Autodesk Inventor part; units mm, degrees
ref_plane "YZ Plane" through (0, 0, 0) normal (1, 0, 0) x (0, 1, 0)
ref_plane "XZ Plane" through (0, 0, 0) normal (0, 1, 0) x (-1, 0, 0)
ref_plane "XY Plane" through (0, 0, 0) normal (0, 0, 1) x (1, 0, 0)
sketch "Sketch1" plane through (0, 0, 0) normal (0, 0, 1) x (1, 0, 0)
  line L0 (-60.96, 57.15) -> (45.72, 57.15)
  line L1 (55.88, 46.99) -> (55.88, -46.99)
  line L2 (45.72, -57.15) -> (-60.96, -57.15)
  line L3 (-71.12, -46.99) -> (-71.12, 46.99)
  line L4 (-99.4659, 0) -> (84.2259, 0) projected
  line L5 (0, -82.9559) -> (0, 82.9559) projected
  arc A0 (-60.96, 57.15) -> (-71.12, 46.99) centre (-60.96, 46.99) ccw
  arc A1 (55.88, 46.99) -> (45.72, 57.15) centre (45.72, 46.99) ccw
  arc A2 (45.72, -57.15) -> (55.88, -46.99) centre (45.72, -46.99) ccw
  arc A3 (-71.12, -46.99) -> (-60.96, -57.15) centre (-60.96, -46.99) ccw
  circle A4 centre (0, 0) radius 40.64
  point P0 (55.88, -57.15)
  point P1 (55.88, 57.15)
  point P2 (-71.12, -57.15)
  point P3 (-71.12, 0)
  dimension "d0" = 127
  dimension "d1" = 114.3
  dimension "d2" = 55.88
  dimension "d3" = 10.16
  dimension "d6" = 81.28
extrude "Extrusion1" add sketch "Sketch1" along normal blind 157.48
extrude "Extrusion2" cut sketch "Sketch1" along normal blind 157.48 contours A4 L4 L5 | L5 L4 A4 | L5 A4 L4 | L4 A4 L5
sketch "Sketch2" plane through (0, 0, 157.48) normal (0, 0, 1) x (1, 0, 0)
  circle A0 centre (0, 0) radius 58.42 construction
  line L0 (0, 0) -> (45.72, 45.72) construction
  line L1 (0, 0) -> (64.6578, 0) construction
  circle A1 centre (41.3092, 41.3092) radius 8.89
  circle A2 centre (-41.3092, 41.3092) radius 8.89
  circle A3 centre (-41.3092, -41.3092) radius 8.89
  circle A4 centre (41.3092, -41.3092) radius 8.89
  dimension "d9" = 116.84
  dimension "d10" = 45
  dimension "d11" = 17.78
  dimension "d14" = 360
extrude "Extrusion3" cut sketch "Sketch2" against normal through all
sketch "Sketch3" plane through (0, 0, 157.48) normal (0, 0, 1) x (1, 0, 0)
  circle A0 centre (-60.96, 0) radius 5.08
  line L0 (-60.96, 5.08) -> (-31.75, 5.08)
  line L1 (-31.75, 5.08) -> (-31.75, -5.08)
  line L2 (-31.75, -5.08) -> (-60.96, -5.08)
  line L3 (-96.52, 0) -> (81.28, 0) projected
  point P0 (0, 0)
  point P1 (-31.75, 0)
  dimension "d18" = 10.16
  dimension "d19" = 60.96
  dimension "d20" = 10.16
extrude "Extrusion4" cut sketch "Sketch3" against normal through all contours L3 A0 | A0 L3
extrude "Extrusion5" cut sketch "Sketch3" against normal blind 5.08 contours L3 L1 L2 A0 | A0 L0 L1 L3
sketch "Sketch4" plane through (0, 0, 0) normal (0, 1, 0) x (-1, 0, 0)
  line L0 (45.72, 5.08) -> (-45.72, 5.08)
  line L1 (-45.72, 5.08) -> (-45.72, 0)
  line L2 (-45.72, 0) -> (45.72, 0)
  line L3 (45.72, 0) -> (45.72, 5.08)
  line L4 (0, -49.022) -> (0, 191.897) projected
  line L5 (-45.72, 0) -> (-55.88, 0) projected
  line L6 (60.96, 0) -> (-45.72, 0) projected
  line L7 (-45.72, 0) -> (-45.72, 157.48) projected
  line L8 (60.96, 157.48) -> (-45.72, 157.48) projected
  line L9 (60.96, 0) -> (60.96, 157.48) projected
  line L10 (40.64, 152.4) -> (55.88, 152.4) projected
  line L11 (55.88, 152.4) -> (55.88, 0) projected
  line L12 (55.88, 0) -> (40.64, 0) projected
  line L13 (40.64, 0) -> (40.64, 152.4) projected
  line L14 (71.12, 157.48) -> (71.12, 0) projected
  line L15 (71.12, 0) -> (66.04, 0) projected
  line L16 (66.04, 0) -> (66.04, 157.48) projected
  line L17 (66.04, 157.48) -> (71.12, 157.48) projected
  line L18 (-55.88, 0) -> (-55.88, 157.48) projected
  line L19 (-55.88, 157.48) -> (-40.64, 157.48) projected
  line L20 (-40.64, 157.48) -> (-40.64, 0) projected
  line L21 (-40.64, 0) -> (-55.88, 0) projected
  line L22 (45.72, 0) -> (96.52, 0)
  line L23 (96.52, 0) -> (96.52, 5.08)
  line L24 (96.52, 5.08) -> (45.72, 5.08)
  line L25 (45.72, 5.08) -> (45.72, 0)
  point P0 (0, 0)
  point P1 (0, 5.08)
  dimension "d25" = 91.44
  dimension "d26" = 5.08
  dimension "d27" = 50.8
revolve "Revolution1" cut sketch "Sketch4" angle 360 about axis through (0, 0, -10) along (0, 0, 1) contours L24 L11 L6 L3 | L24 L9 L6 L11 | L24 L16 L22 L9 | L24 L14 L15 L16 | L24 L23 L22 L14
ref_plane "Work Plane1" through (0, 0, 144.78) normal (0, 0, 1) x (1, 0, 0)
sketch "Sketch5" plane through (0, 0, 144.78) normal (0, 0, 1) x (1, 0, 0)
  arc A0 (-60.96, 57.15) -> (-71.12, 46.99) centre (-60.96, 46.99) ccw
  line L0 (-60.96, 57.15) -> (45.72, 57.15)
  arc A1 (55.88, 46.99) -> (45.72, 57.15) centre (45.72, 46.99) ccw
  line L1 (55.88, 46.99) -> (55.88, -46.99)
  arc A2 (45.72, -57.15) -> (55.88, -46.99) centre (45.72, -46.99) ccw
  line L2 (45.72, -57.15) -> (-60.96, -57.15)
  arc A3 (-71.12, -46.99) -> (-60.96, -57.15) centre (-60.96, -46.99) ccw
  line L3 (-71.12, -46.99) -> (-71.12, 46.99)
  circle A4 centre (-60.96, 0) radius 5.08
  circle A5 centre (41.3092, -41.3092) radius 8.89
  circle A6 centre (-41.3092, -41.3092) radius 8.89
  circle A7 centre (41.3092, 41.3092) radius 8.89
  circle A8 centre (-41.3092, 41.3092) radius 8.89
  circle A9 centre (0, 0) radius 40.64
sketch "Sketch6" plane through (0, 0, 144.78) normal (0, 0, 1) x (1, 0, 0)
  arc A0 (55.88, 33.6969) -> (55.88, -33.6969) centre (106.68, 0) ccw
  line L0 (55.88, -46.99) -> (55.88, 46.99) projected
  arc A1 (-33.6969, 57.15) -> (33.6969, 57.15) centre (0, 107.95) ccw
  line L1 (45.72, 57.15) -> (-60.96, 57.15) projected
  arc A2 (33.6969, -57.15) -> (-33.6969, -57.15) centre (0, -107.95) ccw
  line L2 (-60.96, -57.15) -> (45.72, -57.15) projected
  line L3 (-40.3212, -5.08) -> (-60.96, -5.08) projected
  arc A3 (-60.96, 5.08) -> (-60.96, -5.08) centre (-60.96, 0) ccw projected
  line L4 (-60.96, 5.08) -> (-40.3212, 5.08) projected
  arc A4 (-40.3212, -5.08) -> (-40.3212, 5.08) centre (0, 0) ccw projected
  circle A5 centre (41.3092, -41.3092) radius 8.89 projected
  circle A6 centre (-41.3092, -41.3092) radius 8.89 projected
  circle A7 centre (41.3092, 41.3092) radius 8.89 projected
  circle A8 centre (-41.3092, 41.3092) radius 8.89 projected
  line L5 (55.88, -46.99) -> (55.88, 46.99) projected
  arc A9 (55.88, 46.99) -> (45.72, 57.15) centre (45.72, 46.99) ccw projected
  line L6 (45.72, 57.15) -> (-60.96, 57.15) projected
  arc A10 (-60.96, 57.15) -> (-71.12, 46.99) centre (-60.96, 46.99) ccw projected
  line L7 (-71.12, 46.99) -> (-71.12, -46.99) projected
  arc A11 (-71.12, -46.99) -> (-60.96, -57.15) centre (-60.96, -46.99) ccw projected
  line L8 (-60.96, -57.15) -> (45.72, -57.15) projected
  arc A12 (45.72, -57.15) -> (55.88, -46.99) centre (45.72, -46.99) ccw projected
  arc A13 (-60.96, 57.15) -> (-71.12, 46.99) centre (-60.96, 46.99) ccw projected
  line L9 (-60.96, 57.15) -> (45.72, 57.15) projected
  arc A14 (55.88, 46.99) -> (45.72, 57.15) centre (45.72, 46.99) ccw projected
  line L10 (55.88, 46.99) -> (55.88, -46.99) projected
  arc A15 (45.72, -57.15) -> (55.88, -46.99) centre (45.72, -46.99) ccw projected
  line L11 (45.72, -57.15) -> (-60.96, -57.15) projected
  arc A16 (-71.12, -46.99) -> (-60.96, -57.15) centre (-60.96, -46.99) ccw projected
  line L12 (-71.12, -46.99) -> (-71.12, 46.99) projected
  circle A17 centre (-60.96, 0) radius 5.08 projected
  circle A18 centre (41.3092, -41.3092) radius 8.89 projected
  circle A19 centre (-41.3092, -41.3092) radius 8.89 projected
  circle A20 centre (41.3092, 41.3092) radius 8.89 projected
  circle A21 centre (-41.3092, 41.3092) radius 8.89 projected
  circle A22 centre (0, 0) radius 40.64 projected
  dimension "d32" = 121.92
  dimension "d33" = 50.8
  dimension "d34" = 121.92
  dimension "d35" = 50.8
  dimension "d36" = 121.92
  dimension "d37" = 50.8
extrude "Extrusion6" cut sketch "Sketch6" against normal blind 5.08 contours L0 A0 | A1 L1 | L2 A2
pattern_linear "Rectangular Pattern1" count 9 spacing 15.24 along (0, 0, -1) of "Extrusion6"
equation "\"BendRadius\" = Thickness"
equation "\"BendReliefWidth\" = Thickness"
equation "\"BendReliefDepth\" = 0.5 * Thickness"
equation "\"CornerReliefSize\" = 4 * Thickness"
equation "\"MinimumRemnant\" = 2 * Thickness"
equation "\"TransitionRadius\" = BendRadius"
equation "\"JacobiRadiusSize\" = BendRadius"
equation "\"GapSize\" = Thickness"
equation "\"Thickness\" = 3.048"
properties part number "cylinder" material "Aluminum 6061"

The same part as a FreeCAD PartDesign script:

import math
import FreeCAD as App
import Part
import Sketcher
Q = App.Units.Quantity

doc = App.newDocument("Part")
body = doc.addObject("PartDesign::Body", "Body")

# Sketch on XY plane
sketch1 = body.newObject("Sketcher::SketchObject", "Sketch")
sketch1.AttachmentSupport = (doc.getObject("XY_Plane"), [""])
sketch1.MapMode = "FlatFace"
sketch1.addGeometry(Part.ArcOfCircle(Part.Circle(App.Vector(-61, 47, 0), App.Vector(0, 0, 1), 10), math.radians(90), math.radians(180)), False)
sketch1.addGeometry(Part.LineSegment(App.Vector(-71, 47, 0), App.Vector(-71, -47, 0)), False)
sketch1.addGeometry(Part.ArcOfCircle(Part.Circle(App.Vector(-61, -47, 0), App.Vector(0, 0, 1), 10), math.radians(180), math.radians(270)), False)
sketch1.addGeometry(Part.LineSegment(App.Vector(-61, -57, 0), App.Vector(46, -57, 0)), False)
sketch1.addGeometry(Part.ArcOfCircle(Part.Circle(App.Vector(46, -47, 0), App.Vector(0, 0, 1), 10), math.radians(-90), math.radians(0)), False)
sketch1.addGeometry(Part.LineSegment(App.Vector(56, -47, 0), App.Vector(56, 47, 0)), False)
sketch1.addGeometry(Part.ArcOfCircle(Part.Circle(App.Vector(46, 47, 0), App.Vector(0, 0, 1), 10), math.radians(0), math.radians(90)), False)
sketch1.addGeometry(Part.LineSegment(App.Vector(46, 57, 0), App.Vector(-61, 57, 0)), False)
sketch1.addConstraint(Sketcher.Constraint("Tangent", 0, 2, 1, 1))
sketch1.addConstraint(Sketcher.Constraint("Tangent", 1, 2, 2, 1))
sketch1.addConstraint(Sketcher.Constraint("Tangent", 2, 2, 3, 1))
sketch1.addConstraint(Sketcher.Constraint("Tangent", 3, 2, 4, 1))
sketch1.addConstraint(Sketcher.Constraint("Tangent", 4, 2, 5, 1))
sketch1.addConstraint(Sketcher.Constraint("Tangent", 5, 2, 6, 1))
sketch1.addConstraint(Sketcher.Constraint("Tangent", 6, 2, 7, 1))
sketch1.addConstraint(Sketcher.Constraint("Tangent", 7, 2, 0, 1))
sketch1.addConstraint(Sketcher.Constraint("Vertical", 1))
sketch1.addConstraint(Sketcher.Constraint("Horizontal", 3))
sketch1.addConstraint(Sketcher.Constraint("Vertical", 5))
sketch1.addConstraint(Sketcher.Constraint("Horizontal", 7))
sketch1.addConstraint(Sketcher.Constraint("Equal", 0, 2))
sketch1.addConstraint(Sketcher.Constraint("Equal", 2, 4))
sketch1.addConstraint(Sketcher.Constraint("Equal", 4, 6))
sketch1.addConstraint(Sketcher.Constraint("Radius", 0, Q("0.4 in")))
sketch1.addConstraint(Sketcher.Constraint("DistanceX", -1, 1, 4, 2, Q("2.2 in")))
sketch1.addConstraint(Sketcher.Constraint("DistanceX", 3, 1, 3, 2, Q("4.2 in")))
sketch1.addConstraint(Sketcher.Constraint("DistanceY", 1, 2, 1, 1, Q("3.7 in")))
sketch1.addConstraint(Sketcher.Constraint("DistanceY", -1, 1, 0, 3, Q("1.85 in")))
pad1 = body.newObject("PartDesign::Pad", "Pad")
pad1.Profile = sketch1
pad1.Length = Q("6.2 in")

# Sketch on XY plane
sketch2 = body.newObject("Sketcher::SketchObject", "Sketch001")
sketch2.AttachmentSupport = (doc.getObject("XY_Plane"), [""])
sketch2.MapMode = "FlatFace"
sketch2.addGeometry(Part.Circle(App.Vector(0, 0, 0), App.Vector(0, 0, 1), 41), False)
sketch2.addConstraint(Sketcher.Constraint("Coincident", 0, 3, -1, 1))
sketch2.addConstraint(Sketcher.Constraint("Diameter", 0, Q("3.2 in")))
pocket1 = body.newObject("PartDesign::Pocket", "Pocket")
pocket1.Profile = sketch2
pocket1.Length = Q("6.2 in")
pocket1.Reversed = True

# Sketch on XY plane
sketch3 = body.newObject("Sketcher::SketchObject", "Sketch002")
sketch3.AttachmentSupport = (doc.getObject("XY_Plane"), [""])
sketch3.MapMode = "FlatFace"
sketch3.AttachmentOffset = App.Placement(App.Vector(0, 0, 6.2 * 25.4), App.Rotation())
sketch3.addGeometry(Part.Circle(App.Vector(41, 41, 0), App.Vector(0, 0, 1), 9), False)
sketch3.addGeometry(Part.Circle(App.Vector(-41, 41, 0), App.Vector(0, 0, 1), 9), False)
sketch3.addGeometry(Part.Circle(App.Vector(-41, -41, 0), App.Vector(0, 0, 1), 9), False)
sketch3.addGeometry(Part.Circle(App.Vector(41, -41, 0), App.Vector(0, 0, 1), 9), False)
sketch3.addConstraint(Sketcher.Constraint("Equal", 0, 1))
sketch3.addConstraint(Sketcher.Constraint("Equal", 1, 2))
sketch3.addConstraint(Sketcher.Constraint("Equal", 2, 3))
sketch3.addConstraint(Sketcher.Constraint("Symmetric", 0, 3, 2, 3, -1, 1))
sketch3.addConstraint(Sketcher.Constraint("Symmetric", 1, 3, 3, 3, -1, 1))
sketch3.addConstraint(Sketcher.Constraint("Symmetric", 0, 3, 1, 3, -2))
sketch3.addConstraint(Sketcher.Constraint("Diameter", 0, Q("0.7 in")))
sketch3.addConstraint(Sketcher.Constraint("DistanceX", 1, 3, 0, 3, Q("3.2527 in")))
sketch3.addConstraint(Sketcher.Constraint("DistanceY", 2, 3, 1, 3, Q("3.2527 in")))
pocket2 = body.newObject("PartDesign::Pocket", "Pocket001")
pocket2.Profile = sketch3
pocket2.Type = "ThroughAll"

# Sketch on XY plane
sketch4 = body.newObject("Sketcher::SketchObject", "Sketch003")
sketch4.AttachmentSupport = (doc.getObject("XY_Plane"), [""])
sketch4.MapMode = "FlatFace"
sketch4.AttachmentOffset = App.Placement(App.Vector(0, 0, 6.2 * 25.4), App.Rotation())
sketch4.addGeometry(Part.Circle(App.Vector(-61, 0, 0), App.Vector(0, 0, 1), 5), False)
sketch4.addConstraint(Sketcher.Constraint("PointOnObject", 0, 3, -1))
sketch4.addConstraint(Sketcher.Constraint("Diameter", 0, Q("0.4 in")))
sketch4.addConstraint(Sketcher.Constraint("DistanceX", 0, 3, -1, 1, Q("2.4 in")))
pocket3 = body.newObject("PartDesign::Pocket", "Pocket002")
pocket3.Profile = sketch4
pocket3.Type = "ThroughAll"

# Sketch on XY plane
sketch5 = body.newObject("Sketcher::SketchObject", "Sketch004")
sketch5.AttachmentSupport = (doc.getObject("XY_Plane"), [""])
sketch5.MapMode = "FlatFace"
sketch5.AttachmentOffset = App.Placement(App.Vector(0, 0, 6.2 * 25.4), App.Rotation())
sketch5.addGeometry(Part.LineSegment(App.Vector(-32, -5, 0), App.Vector(-32, 5, 0)), False)
sketch5.addGeometry(Part.LineSegment(App.Vector(-32, 5, 0), App.Vector(-61, 5, 0)), False)
sketch5.addGeometry(Part.ArcOfCircle(Part.Circle(App.Vector(-61, 0, 0), App.Vector(0, 0, 1), 5), math.radians(-90), math.radians(90)), False)
sketch5.addGeometry(Part.LineSegment(App.Vector(-61, -5, 0), App.Vector(-32, -5, 0)), False)
sketch5.addConstraint(Sketcher.Constraint("Coincident", 0, 2, 1, 1))
sketch5.addConstraint(Sketcher.Constraint("Tangent", 1, 2, 2, 2))
sketch5.addConstraint(Sketcher.Constraint("Tangent", 2, 1, 3, 1))
sketch5.addConstraint(Sketcher.Constraint("Coincident", 3, 2, 0, 1))
sketch5.addConstraint(Sketcher.Constraint("Vertical", 0))
sketch5.addConstraint(Sketcher.Constraint("Horizontal", 1))
sketch5.addConstraint(Sketcher.Constraint("Horizontal", 3))
sketch5.addConstraint(Sketcher.Constraint("PointOnObject", 2, 3, -1))
sketch5.addConstraint(Sketcher.Constraint("Radius", 2, Q("0.2 in")))
sketch5.addConstraint(Sketcher.Constraint("DistanceX", 2, 3, -1, 1, Q("2.4 in")))
sketch5.addConstraint(Sketcher.Constraint("DistanceX", 1, 2, 1, 1, Q("1.15 in")))
pocket4 = body.newObject("PartDesign::Pocket", "Pocket003")
pocket4.Profile = sketch5
pocket4.Length = Q("0.2 in")

# Sketch on XZ plane
sketch6 = body.newObject("Sketcher::SketchObject", "Sketch005")
sketch6.AttachmentSupport = (doc.getObject("XZ_Plane"), [""])
sketch6.MapMode = "FlatFace"
sketch6.addGeometry(Part.LineSegment(App.Vector(-46, 5, 0), App.Vector(-46, 0, 0)), False)
sketch6.addGeometry(Part.LineSegment(App.Vector(-46, 0, 0), App.Vector(-97, 0, 0)), False)
sketch6.addGeometry(Part.LineSegment(App.Vector(-97, 0, 0), App.Vector(-97, 5, 0)), False)
sketch6.addGeometry(Part.LineSegment(App.Vector(-97, 5, 0), App.Vector(-46, 5, 0)), False)
sketch6.addConstraint(Sketcher.Constraint("Coincident", 0, 2, 1, 1))
sketch6.addConstraint(Sketcher.Constraint("Coincident", 1, 2, 2, 1))
sketch6.addConstraint(Sketcher.Constraint("Coincident", 2, 2, 3, 1))
sketch6.addConstraint(Sketcher.Constraint("Coincident", 3, 2, 0, 1))
sketch6.addConstraint(Sketcher.Constraint("Vertical", 0))
sketch6.addConstraint(Sketcher.Constraint("Horizontal", 1))
sketch6.addConstraint(Sketcher.Constraint("Vertical", 2))
sketch6.addConstraint(Sketcher.Constraint("Horizontal", 3))
sketch6.addConstraint(Sketcher.Constraint("PointOnObject", 0, 2, -1))
sketch6.addConstraint(Sketcher.Constraint("DistanceX", 1, 2, 1, 1, Q("2 in")))
sketch6.addConstraint(Sketcher.Constraint("DistanceY", 0, 2, 0, 1, Q("0.2 in")))
sketch6.addConstraint(Sketcher.Constraint("DistanceX", 0, 2, -1, 1, Q("1.8 in")))
groove = body.newObject("PartDesign::Groove", "Groove")
groove.Profile = sketch6
groove.ReferenceAxis = (sketch6, ["V_Axis"])
groove.Angle = 360

# Sketch on XY plane
sketch7 = body.newObject("Sketcher::SketchObject", "Sketch006")
sketch7.AttachmentSupport = (doc.getObject("XY_Plane"), [""])
sketch7.MapMode = "FlatFace"
sketch7.AttachmentOffset = App.Placement(App.Vector(0, 0, 5.7 * 25.4), App.Rotation())
sketch7.addGeometry(Part.LineSegment(App.Vector(56, -34, 0), App.Vector(56, 34, 0)), False)
sketch7.addGeometry(Part.ArcOfCircle(Part.Circle(App.Vector(107, 0, 0), App.Vector(0, 0, 1), 61), math.radians(146), math.radians(214)), False)
sketch7.addGeometry(Part.ArcOfCircle(Part.Circle(App.Vector(0, 108, 0), App.Vector(0, 0, 1), 61), math.radians(-124), math.radians(-56)), False)
sketch7.addGeometry(Part.LineSegment(App.Vector(34, 57, 0), App.Vector(-34, 57, 0)), False)
sketch7.addGeometry(Part.LineSegment(App.Vector(-34, -57, 0), App.Vector(34, -57, 0)), False)
sketch7.addGeometry(Part.ArcOfCircle(Part.Circle(App.Vector(0, -108, 0), App.Vector(0, 0, 1), 61), math.radians(56), math.radians(124)), False)
sketch7.addConstraint(Sketcher.Constraint("Coincident", 0, 1, 1, 2))
sketch7.addConstraint(Sketcher.Constraint("Coincident", 1, 1, 0, 2))
sketch7.addConstraint(Sketcher.Constraint("Coincident", 2, 1, 3, 2))
sketch7.addConstraint(Sketcher.Constraint("Coincident", 3, 1, 2, 2))
sketch7.addConstraint(Sketcher.Constraint("Coincident", 4, 1, 5, 2))
sketch7.addConstraint(Sketcher.Constraint("Coincident", 5, 1, 4, 2))
sketch7.addConstraint(Sketcher.Constraint("Vertical", 0))
sketch7.addConstraint(Sketcher.Constraint("Horizontal", 3))
sketch7.addConstraint(Sketcher.Constraint("Horizontal", 4))
sketch7.addConstraint(Sketcher.Constraint("Equal", 1, 2))
sketch7.addConstraint(Sketcher.Constraint("Equal", 2, 5))
sketch7.addConstraint(Sketcher.Constraint("Symmetric", 2, 3, 5, 3, -1, 1))
sketch7.addConstraint(Sketcher.Constraint("Symmetric", 2, 1, 4, 1, -1))
sketch7.addConstraint(Sketcher.Constraint("PointOnObject", 1, 3, -1))
sketch7.addConstraint(Sketcher.Constraint("Equal", 4, 0))
sketch7.addConstraint(Sketcher.Constraint("Radius", 1, Q("2.4 in")))
sketch7.addConstraint(Sketcher.Constraint("DistanceX", 0, 1, 1, 3, Q("2 in")))
sketch7.addConstraint(Sketcher.Constraint("DistanceX", -1, 1, 1, 3, Q("4.2 in")))
sketch7.addConstraint(Sketcher.Constraint("DistanceY", 5, 3, 2, 3, Q("8.5 in")))
pocket5 = body.newObject("PartDesign::Pocket", "Pocket004")
pocket5.Profile = sketch7
pocket5.Length = Q("0.2 in")
doc.recompute()

linearpattern = body.newObject("PartDesign::LinearPattern", "LinearPattern")
linearpattern.Originals = [pocket5]
linearpattern.Direction = (doc.getObject("Z_Axis"), [""])
linearpattern.Mode = "offset"
linearpattern.Offset = Q("0.6 in")
linearpattern.Occurrences = 9
linearpattern.Reversed = True
body.Tip = linearpattern

doc.recompute()
